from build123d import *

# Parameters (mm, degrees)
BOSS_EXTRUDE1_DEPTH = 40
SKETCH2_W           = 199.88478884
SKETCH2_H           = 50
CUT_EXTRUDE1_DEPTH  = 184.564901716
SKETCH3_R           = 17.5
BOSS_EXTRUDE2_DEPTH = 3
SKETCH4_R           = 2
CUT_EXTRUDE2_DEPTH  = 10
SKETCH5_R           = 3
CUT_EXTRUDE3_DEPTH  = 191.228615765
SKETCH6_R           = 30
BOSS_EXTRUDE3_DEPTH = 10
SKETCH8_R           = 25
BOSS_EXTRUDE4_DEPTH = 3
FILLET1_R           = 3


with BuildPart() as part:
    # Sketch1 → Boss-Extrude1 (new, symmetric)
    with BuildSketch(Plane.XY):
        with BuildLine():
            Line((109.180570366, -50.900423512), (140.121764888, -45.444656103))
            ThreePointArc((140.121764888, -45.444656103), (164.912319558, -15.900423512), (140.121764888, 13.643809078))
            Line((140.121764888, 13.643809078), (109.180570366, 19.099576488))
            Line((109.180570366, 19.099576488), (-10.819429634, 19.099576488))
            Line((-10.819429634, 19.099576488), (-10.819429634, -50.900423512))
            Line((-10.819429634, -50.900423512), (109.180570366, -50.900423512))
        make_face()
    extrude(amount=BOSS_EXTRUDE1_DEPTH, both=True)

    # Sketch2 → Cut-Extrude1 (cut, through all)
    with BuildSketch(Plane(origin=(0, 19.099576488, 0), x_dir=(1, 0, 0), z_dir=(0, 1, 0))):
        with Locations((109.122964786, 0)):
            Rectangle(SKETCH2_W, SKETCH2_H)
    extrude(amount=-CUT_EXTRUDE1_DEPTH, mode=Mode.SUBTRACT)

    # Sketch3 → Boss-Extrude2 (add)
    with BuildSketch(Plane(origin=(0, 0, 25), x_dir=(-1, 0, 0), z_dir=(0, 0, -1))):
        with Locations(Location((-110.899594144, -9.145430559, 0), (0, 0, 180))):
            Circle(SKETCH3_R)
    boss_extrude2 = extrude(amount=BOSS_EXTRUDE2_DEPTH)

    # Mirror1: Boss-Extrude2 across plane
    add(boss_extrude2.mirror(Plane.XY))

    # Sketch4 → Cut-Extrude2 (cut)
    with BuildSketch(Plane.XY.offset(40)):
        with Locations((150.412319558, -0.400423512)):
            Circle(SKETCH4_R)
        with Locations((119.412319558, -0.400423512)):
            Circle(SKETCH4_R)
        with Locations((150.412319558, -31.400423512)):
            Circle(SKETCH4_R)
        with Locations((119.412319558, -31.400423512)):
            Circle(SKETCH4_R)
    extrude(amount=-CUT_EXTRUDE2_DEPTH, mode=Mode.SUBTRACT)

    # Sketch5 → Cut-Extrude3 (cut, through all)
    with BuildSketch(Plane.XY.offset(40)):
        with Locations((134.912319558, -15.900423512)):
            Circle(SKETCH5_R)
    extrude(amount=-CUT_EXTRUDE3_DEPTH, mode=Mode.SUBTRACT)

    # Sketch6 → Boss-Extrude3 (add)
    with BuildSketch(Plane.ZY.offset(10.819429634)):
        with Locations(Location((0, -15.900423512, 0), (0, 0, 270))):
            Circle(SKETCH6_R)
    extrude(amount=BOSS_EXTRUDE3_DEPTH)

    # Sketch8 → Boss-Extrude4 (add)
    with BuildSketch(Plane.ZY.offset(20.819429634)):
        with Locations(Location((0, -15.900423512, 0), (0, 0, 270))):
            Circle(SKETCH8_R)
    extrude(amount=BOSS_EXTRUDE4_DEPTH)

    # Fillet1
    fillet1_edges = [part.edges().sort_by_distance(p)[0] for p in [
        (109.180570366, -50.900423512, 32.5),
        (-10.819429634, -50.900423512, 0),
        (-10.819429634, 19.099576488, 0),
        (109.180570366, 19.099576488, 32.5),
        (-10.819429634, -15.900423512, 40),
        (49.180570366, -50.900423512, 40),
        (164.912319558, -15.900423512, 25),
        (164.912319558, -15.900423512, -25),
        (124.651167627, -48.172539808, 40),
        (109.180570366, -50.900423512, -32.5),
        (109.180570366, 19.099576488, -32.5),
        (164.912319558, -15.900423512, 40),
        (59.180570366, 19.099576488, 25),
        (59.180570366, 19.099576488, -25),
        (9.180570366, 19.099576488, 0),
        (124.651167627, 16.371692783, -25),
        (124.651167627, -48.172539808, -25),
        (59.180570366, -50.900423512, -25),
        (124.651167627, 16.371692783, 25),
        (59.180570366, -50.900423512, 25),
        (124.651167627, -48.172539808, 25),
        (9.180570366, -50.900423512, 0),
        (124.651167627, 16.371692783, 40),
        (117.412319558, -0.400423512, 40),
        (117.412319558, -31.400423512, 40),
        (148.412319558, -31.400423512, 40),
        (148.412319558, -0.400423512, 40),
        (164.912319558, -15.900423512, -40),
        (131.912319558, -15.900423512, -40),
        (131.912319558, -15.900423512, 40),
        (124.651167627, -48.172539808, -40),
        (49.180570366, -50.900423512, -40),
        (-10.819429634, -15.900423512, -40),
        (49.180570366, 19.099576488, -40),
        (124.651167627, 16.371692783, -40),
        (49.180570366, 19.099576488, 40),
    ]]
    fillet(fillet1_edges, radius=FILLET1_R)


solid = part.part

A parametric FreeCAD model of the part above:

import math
import FreeCAD as App
import Part
import Sketcher
Q = App.Units.Quantity


def edges_at(feature, points):
    """Names of the edges that pass closest to the given points."""
    edges = feature.Shape.Edges
    near = lambda p: min(range(len(edges)), key=lambda i: edges[i].distToShape(Part.Vertex(*p))[0])
    return sorted({f"Edge{near(p) + 1}" for p in points})


def add_polygon(sketch, points):
    """Adds a closed chain of lines whose ends are joined by coincident constraints."""
    first, n = sketch.GeometryCount, len(points)
    for a, b in zip(points, points[1:] + points[:1]):
        sketch.addGeometry(Part.LineSegment(App.Vector(*a, 0), App.Vector(*b, 0)), False)
    for i in range(n):
        sketch.addConstraint(Sketcher.Constraint("Coincident", first + i, 2, first + (i + 1) % n, 1))

doc = App.newDocument("Part")
body = doc.addObject("PartDesign::Body", "Body")

# Sketch on XY plane
sketch1 = doc.addObject("Sketcher::SketchObject", "Sketch")
body.addObject(sketch1)
sketch1.AttachmentSupport = (doc.XY_Plane, [""])
sketch1.MapMode = "FlatFace"
sketch1.addGeometry([
    Part.LineSegment(App.Vector(109, -51, 0), App.Vector(140, -45, 0)),  # 0
    Part.ArcOfCircle(Part.Circle(App.Vector(135, -16, 0), App.Vector(0, 0, 1), 30), math.radians(-80), math.radians(80)),  # 1
    Part.LineSegment(App.Vector(140, 14, 0), App.Vector(109, 19, 0)),  # 2
    Part.LineSegment(App.Vector(109, 19, 0), App.Vector(-11, 19, 0)),  # 3
    Part.LineSegment(App.Vector(-11, 19, 0), App.Vector(-11, -51, 0)),  # 4
    Part.LineSegment(App.Vector(-11, -51, 0), App.Vector(109, -51, 0)),  # 5
], False)
sketch1.addConstraint([
    Sketcher.Constraint("Tangent", 0, 2, 1, 1),
    Sketcher.Constraint("Tangent", 1, 2, 2, 1),
    Sketcher.Constraint("Coincident", 2, 2, 3, 1),
    Sketcher.Constraint("Coincident", 3, 2, 4, 1),
    Sketcher.Constraint("Coincident", 4, 2, 5, 1),
    Sketcher.Constraint("Coincident", 5, 2, 0, 1),
    Sketcher.Constraint("Horizontal", 3),
    Sketcher.Constraint("Vertical", 4),
    Sketcher.Constraint("Horizontal", 5),
    Sketcher.Constraint("Vertical", 0, 2, 1, 2),
    Sketcher.Constraint("Vertical", 2, 2, 5, 2),
    Sketcher.Constraint("Radius", 1, Q("30 mm")),
    Sketcher.Constraint("DistanceX", 3, 2, 3, 1, Q("120 mm")),
    Sketcher.Constraint("DistanceY", 4, 2, 4, 1, Q("70 mm")),
    Sketcher.Constraint("Angle", 0, Q("10 deg")),
    Sketcher.Constraint("DistanceX", -1, 1, 1, 3, Q("134.91232 mm")),
    Sketcher.Constraint("DistanceY", -1, 1, 1, 2, Q("13.643809 mm")),
])
pad1 = doc.addObject("PartDesign::Pad", "Pad")
body.addObject(pad1)
pad1.Profile = sketch1
pad1.Length = 80
pad1.Midplane = True

# Sketch on XZ plane
sketch2 = doc.addObject("Sketcher::SketchObject", "Sketch001")
body.addObject(sketch2)
sketch2.AttachmentSupport = (doc.XZ_Plane, [""])
sketch2.MapMode = "FlatFace"
sketch2.AttachmentOffset = App.Placement(App.Vector(0, 0, -19.099576), App.Rotation())
add_polygon(sketch2, [(9, -25), (9, 25), (209, 25), (209, -25)])  # lines 0-3
sketch2.addConstraint([
    Sketcher.Constraint("Vertical", 0),
    Sketcher.Constraint("Horizontal", 1),
    Sketcher.Constraint("Vertical", 2),
    Sketcher.Constraint("Horizontal", 3),
    Sketcher.Constraint("DistanceY", 0, 1, 0, 2, Q("50 mm")),
    Sketcher.Constraint("DistanceY", -1, 1, 0, 2, Q("25 mm")),
    Sketcher.Constraint("DistanceX", 1, 1, 1, 2, Q("199.884789 mm")),
    Sketcher.Constraint("DistanceX", -1, 1, 0, 2, Q("9.18057 mm")),
])
pocket1 = doc.addObject("PartDesign::Pocket", "Pocket")
body.addObject(pocket1)
pocket1.Profile = sketch2
pocket1.Type = "ThroughAll"
pocket1.Reversed = True

# Sketch on XY plane
sketch3 = doc.addObject("Sketcher::SketchObject", "Sketch002")
body.addObject(sketch3)
sketch3.AttachmentSupport = (doc.XY_Plane, [""])
sketch3.MapMode = "FlatFace"
sketch3.AttachmentOffset = App.Placement(App.Vector(0, 0, 25), App.Rotation())
sketch3.addGeometry(Part.Circle(App.Vector(111, -9, 0), App.Vector(0, 0, 1), 18), False)
sketch3.addConstraint([
    Sketcher.Constraint("Diameter", 0, Q("35 mm")),
    Sketcher.Constraint("DistanceY", 0, 3, -1, 1, Q("9.145431 mm")),
    Sketcher.Constraint("DistanceX", -1, 1, 0, 3, Q("110.899594 mm")),
])
pad2 = doc.addObject("PartDesign::Pad", "Pad001")
body.addObject(pad2)
pad2.Profile = sketch3
pad2.Length = 3
pad2.Reversed = True
doc.recompute()

mirrored = doc.addObject("PartDesign::Mirrored", "Mirrored")
body.addObject(mirrored)
mirrored.Originals = [pad2]
mirrored.MirrorPlane = (doc.XY_Plane, [""])
body.Tip = mirrored

# Sketch on XY plane
sketch4 = doc.addObject("Sketcher::SketchObject", "Sketch003")
body.addObject(sketch4)
sketch4.AttachmentSupport = (doc.XY_Plane, [""])
sketch4.MapMode = "FlatFace"
sketch4.AttachmentOffset = App.Placement(App.Vector(0, 0, 40), App.Rotation())
sketch4.addGeometry([
    Part.Circle(App.Vector(150.4, -0.4, 0), App.Vector(0, 0, 1), 2),
    Part.Circle(App.Vector(119.4, -0.4, 0), App.Vector(0, 0, 1), 2),
    Part.Circle(App.Vector(150.4, -31.4, 0), App.Vector(0, 0, 1), 2),
    Part.Circle(App.Vector(119.4, -31.4, 0), App.Vector(0, 0, 1), 2),
], False)
sketch4.addConstraint([
    Sketcher.Constraint("Equal", 0, 1),
    Sketcher.Constraint("Equal", 1, 2),
    Sketcher.Constraint("Equal", 2, 3),
    Sketcher.Constraint("Horizontal", 0, 3, 1, 3),
    Sketcher.Constraint("Horizontal", 2, 3, 3, 3),
    Sketcher.Constraint("Vertical", 0, 3, 2, 3),
    Sketcher.Constraint("Vertical", 1, 3, 3, 3),
    Sketcher.Constraint("Diameter", 0, Q("4 mm")),
    Sketcher.Constraint("DistanceX", 1, 3, 0, 3, Q("31 mm")),
    Sketcher.Constraint("DistanceY", 2, 3, 0, 3, Q("31 mm")),
    Sketcher.Constraint("DistanceX", -1, 1, 0, 3, Q("150.41232 mm")),
    Sketcher.Constraint("DistanceY", 0, 3, -1, 1, Q("0.400424 mm")),
])
pocket2 = doc.addObject("PartDesign::Pocket", "Pocket001")
body.addObject(pocket2)
pocket2.Profile = sketch4
pocket2.Length = 10

# Sketch on XY plane
sketch5 = doc.addObject("Sketcher::SketchObject", "Sketch004")
body.addObject(sketch5)
sketch5.AttachmentSupport = (doc.XY_Plane, [""])
sketch5.MapMode = "FlatFace"
sketch5.AttachmentOffset = App.Placement(App.Vector(0, 0, 40), App.Rotation())
sketch5.addGeometry(Part.Circle(App.Vector(134.9, -15.9, 0), App.Vector(0, 0, 1), 3), False)
sketch5.addConstraint([
    Sketcher.Constraint("Diameter", 0, Q("6 mm")),
    Sketcher.Constraint("DistanceX", -1, 1, 0, 3, Q("134.91232 mm")),
    Sketcher.Constraint("DistanceY", 0, 3, -1, 1, Q("15.900424 mm")),
])
pocket3 = doc.addObject("PartDesign::Pocket", "Pocket002")
body.addObject(pocket3)
pocket3.Profile = sketch5
pocket3.Type = "ThroughAll"

# Sketch on YZ plane
sketch6 = doc.addObject("Sketcher::SketchObject", "Sketch005")
body.addObject(sketch6)
sketch6.AttachmentSupport = (doc.YZ_Plane, [""])
sketch6.MapMode = "FlatFace"
sketch6.AttachmentOffset = App.Placement(App.Vector(0, 0, -10.81943), App.Rotation())
sketch6.addGeometry(Part.Circle(App.Vector(-16, 0, 0), App.Vector(0, 0, 1), 30), False)
sketch6.addConstraint([
    Sketcher.Constraint("PointOnObject", 0, 3, -1),
    Sketcher.Constraint("Diameter", 0, Q("60 mm")),
    Sketcher.Constraint("DistanceX", 0, 3, -1, 1, Q("15.900424 mm")),
])
pad3 = doc.addObject("PartDesign::Pad", "Pad002")
body.addObject(pad3)
pad3.Profile = sketch6
pad3.Length = 10
pad3.Reversed = True

# Sketch on YZ plane
sketch7 = doc.addObject("Sketcher::SketchObject", "Sketch006")
body.addObject(sketch7)
sketch7.AttachmentSupport = (doc.YZ_Plane, [""])
sketch7.MapMode = "FlatFace"
sketch7.AttachmentOffset = App.Placement(App.Vector(0, 0, -20.81943), App.Rotation())
sketch7.addGeometry(Part.Circle(App.Vector(-16, 0, 0), App.Vector(0, 0, 1), 25), False)
sketch7.addConstraint([
    Sketcher.Constraint("PointOnObject", 0, 3, -1),
    Sketcher.Constraint("Diameter", 0, Q("50 mm")),
    Sketcher.Constraint("DistanceX", 0, 3, -1, 1, Q("15.900424 mm")),
])
pad4 = doc.addObject("PartDesign::Pad", "Pad003")
body.addObject(pad4)
pad4.Profile = sketch7
pad4.Length = 3
pad4.Reversed = True
doc.recompute()

fillet = doc.addObject("PartDesign::Fillet", "Fillet")
body.addObject(fillet)
fillet.Base = (pad4, edges_at(pad4, [
    (109.181, -50.9, 32.5),
    (-10.819, -50.9, 0),
    (-10.819, 19.1, 0),
    (109.181, 19.1, 32.5),
    (-10.819, -15.9, 40),
    (49.181, -50.9, 40),
    (164.912, -15.9, 25),
    (164.912, -15.9, -25),
    (124.651, -48.173, 40),
    (109.181, -50.9, -32.5),
    (109.181, 19.1, -32.5),
    (164.912, -15.9, 40),
    (59.181, 19.1, 25),
    (59.181, 19.1, -25),
    (9.181, 19.1, 0),
    (124.651, 16.372, -25),
    (124.651, -48.173, -25),
    (59.181, -50.9, -25),
    (124.651, 16.372, 25),
    (59.181, -50.9, 25),
    (124.651, -48.173, 25),
    (9.181, -50.9, 0),
    (124.651, 16.372, 40),
    (117.412, -0.4, 40),
    (117.412, -31.4, 40),
    (148.412, -31.4, 40),
    (148.412, -0.4, 40),
    (164.912, -15.9, -40),
    (131.912, -15.9, -40),
    (131.912, -15.9, 40),
    (124.651, -48.173, -40),
    (49.181, -50.9, -40),
    (-10.819, -15.9, -40),
    (49.181, 19.1, -40),
    (124.651, 16.372, -40),
    (49.181, 19.1, 40),
]))
fillet.Radius = 3

doc.recompute()
